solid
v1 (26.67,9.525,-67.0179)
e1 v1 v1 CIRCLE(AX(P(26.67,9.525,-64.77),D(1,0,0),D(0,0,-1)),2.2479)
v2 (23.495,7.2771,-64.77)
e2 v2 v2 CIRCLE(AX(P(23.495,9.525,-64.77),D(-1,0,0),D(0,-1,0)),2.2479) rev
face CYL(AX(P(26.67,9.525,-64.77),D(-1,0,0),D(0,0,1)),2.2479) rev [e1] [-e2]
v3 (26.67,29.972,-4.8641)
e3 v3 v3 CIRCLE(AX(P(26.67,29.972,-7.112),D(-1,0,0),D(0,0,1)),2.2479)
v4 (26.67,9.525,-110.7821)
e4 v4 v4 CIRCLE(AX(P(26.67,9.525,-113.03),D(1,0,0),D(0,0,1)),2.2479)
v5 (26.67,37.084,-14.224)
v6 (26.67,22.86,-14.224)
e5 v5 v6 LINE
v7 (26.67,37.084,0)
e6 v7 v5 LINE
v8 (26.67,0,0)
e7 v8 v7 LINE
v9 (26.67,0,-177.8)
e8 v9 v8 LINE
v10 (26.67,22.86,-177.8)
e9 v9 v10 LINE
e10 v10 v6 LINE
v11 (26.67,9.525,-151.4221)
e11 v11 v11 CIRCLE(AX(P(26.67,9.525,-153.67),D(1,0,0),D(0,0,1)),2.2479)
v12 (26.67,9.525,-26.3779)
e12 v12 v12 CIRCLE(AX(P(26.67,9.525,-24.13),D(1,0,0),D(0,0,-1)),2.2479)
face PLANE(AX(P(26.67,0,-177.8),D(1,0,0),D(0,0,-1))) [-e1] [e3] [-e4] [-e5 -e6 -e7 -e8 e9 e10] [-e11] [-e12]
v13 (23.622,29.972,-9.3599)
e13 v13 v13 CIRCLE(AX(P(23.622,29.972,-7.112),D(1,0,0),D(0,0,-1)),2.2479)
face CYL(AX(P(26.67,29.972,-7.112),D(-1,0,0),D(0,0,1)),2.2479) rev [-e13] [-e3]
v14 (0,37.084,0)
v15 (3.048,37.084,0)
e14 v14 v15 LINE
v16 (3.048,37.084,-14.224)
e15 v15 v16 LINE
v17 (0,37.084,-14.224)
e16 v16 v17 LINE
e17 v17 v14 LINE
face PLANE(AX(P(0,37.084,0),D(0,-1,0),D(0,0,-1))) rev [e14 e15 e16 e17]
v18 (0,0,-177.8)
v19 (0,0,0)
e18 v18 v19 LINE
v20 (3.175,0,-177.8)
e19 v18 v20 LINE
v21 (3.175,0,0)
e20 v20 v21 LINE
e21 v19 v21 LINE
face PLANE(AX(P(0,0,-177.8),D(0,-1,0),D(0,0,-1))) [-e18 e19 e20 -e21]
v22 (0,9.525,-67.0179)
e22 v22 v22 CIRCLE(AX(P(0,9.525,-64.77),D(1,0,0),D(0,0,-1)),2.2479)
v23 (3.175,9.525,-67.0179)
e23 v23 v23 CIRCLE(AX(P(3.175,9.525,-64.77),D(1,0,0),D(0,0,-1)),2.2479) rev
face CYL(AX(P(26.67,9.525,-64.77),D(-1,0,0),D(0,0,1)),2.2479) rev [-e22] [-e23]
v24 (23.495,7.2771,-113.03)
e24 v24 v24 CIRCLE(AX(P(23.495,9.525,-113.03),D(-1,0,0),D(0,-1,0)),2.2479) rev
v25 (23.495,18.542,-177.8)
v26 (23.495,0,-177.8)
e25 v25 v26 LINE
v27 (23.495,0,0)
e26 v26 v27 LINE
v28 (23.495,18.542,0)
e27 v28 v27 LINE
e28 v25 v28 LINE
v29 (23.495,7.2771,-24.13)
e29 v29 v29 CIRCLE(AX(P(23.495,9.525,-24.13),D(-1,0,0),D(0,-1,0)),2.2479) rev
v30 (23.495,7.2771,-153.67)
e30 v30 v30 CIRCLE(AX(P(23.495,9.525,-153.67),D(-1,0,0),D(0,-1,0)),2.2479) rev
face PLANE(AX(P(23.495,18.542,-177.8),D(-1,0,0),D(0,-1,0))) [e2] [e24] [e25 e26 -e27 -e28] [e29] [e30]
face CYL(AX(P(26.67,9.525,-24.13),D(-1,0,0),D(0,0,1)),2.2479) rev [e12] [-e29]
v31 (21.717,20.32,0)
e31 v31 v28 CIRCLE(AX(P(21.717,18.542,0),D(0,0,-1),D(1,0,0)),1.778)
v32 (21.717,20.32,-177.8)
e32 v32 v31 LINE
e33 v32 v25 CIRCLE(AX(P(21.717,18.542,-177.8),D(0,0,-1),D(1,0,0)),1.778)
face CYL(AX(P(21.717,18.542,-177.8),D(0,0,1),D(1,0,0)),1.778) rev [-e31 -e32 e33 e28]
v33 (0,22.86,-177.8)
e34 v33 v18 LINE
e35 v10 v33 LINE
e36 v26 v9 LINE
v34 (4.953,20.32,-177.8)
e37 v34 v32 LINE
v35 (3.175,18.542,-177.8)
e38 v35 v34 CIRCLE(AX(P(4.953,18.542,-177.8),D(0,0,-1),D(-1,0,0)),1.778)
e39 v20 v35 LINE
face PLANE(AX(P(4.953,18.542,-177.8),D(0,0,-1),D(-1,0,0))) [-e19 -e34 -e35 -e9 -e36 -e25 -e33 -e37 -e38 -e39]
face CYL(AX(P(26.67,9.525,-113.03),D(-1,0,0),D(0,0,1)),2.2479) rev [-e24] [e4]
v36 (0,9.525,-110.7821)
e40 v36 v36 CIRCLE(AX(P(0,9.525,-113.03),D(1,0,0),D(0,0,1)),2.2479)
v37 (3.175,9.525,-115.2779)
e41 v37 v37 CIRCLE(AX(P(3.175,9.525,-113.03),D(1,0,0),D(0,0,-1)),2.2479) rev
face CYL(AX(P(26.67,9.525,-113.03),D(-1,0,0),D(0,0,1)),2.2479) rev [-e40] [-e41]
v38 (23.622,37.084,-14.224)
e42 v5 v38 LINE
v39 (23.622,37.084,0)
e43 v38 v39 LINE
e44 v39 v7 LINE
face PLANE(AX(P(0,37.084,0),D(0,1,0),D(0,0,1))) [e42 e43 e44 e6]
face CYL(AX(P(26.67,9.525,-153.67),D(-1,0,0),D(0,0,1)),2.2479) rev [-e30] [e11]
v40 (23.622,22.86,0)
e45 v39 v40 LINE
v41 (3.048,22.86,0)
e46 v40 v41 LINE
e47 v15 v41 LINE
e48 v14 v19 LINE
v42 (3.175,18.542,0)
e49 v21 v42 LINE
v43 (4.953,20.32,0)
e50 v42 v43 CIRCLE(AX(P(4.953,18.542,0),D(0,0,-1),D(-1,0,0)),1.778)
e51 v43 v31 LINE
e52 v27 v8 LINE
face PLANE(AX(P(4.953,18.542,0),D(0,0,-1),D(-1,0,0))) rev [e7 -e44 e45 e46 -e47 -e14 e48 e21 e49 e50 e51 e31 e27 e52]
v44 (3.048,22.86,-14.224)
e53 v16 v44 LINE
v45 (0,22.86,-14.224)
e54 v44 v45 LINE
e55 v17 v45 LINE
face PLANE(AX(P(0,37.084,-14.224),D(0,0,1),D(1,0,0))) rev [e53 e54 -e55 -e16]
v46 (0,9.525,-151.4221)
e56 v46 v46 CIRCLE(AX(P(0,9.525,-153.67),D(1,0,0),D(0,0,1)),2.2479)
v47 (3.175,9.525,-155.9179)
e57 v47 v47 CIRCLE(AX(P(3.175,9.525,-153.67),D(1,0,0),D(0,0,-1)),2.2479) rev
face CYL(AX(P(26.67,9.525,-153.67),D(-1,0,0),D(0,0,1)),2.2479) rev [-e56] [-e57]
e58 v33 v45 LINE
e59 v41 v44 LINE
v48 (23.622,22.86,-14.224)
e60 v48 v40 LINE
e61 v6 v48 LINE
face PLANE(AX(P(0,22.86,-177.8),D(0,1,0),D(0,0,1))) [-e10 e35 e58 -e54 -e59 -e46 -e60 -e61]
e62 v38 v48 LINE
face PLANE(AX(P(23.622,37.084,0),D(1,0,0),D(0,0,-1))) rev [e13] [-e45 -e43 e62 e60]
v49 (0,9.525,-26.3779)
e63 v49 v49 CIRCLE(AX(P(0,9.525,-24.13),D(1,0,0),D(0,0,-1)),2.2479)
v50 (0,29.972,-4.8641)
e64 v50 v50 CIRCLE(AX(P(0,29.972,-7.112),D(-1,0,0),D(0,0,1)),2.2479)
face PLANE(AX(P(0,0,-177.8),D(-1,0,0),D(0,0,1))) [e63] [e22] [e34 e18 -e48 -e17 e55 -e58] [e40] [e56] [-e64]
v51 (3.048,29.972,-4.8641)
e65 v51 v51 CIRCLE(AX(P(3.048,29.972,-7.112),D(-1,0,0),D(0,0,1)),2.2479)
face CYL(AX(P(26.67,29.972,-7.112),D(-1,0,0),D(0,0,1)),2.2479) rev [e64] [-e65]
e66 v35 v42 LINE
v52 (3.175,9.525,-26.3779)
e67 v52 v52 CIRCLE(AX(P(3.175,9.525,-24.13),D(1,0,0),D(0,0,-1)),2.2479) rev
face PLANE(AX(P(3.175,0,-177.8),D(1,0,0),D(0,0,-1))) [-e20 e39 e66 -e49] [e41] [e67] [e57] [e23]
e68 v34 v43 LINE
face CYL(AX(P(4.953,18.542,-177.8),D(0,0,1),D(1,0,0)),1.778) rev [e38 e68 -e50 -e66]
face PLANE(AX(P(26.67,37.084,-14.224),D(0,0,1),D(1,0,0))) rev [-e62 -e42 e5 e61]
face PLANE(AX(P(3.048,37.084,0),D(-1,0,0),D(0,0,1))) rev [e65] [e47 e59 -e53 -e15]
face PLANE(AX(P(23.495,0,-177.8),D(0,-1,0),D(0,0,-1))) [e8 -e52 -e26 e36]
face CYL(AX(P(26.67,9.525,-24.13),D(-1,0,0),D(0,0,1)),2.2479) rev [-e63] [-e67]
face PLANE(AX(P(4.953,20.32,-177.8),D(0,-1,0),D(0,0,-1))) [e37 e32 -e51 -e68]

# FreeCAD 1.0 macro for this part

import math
import FreeCAD as App
import Part
import Sketcher
from FreeCAD import Vector
Q = App.Units.Quantity


def add_polygon(sketch, points):
    """Adds a closed chain of lines whose ends are joined by coincident constraints."""
    first, n = sketch.GeometryCount, len(points)
    for a, b in zip(points, points[1:] + points[:1]):
        sketch.addGeometry(Part.LineSegment(App.Vector(*a, 0), App.Vector(*b, 0)), False)
    for i in range(n):
        sketch.addConstraint(Sketcher.Constraint("Coincident", first + i, 2, first + (i + 1) % n, 1))

doc = App.newDocument("Part")
body = doc.addObject("PartDesign::Body", "Body")

sketch1 = body.newObject("Sketcher::SketchObject", "Sketch")
sketch1.AttachmentSupport = (doc.getObject("XY_Plane"), [""])
sketch1.MapMode = "FlatFace"
sketch1.addGeometry([
    Part.LineSegment(Vector(0, 22.9, 0), Vector(0, 0, 0)),
    Part.LineSegment(Vector(0, 0, 0), Vector(3.2, 0, 0)),
    Part.LineSegment(Vector(3.2, 0, 0), Vector(3.2, 18.5, 0)),
    Part.ArcOfCircle(Part.Circle(Vector(5, 18.5, 0), Vector(0, 0, 1), 1.8), math.radians(90), math.radians(180)),
    Part.LineSegment(Vector(5, 20.3, 0), Vector(21.7, 20.3, 0)),
    Part.ArcOfCircle(Part.Circle(Vector(21.7, 18.5, 0), Vector(0, 0, 1), 1.8), math.radians(0), math.radians(90)),
    Part.LineSegment(Vector(23.5, 18.5, 0), Vector(23.5, 0, 0)),
    Part.LineSegment(Vector(23.5, 0, 0), Vector(26.7, 0, 0)),
    Part.LineSegment(Vector(26.7, 0, 0), Vector(26.7, 22.9, 0)),
    Part.LineSegment(Vector(26.7, 22.9, 0), Vector(0, 22.9, 0)),
], False)
sketch1.addConstraint([
    Sketcher.Constraint("Coincident", 0, 2, 1, 1),
    Sketcher.Constraint("Coincident", 1, 2, 2, 1),
    Sketcher.Constraint("Tangent", 2, 2, 3, 2),
    Sketcher.Constraint("Tangent", 3, 1, 4, 1),
    Sketcher.Constraint("Tangent", 4, 2, 5, 2),
    Sketcher.Constraint("Tangent", 5, 1, 6, 1),
    Sketcher.Constraint("Coincident", 6, 2, 7, 1),
    Sketcher.Constraint("Coincident", 7, 2, 8, 1),
    Sketcher.Constraint("Coincident", 8, 2, 9, 1),
    Sketcher.Constraint("Coincident", 9, 2, 0, 1),
    Sketcher.Constraint("Vertical", 0),
    Sketcher.Constraint("Horizontal", 1),
    Sketcher.Constraint("Vertical", 2),
    Sketcher.Constraint("Horizontal", 4),
    Sketcher.Constraint("Vertical", 6),
    Sketcher.Constraint("Horizontal", 7),
    Sketcher.Constraint("Vertical", 8),
    Sketcher.Constraint("Horizontal", 9),
    Sketcher.Constraint("Coincident", 0, 2, -1, 1),
    Sketcher.Constraint("Equal", 3, 5),
    Sketcher.Constraint("PointOnObject", 6, 2, -1),
    Sketcher.Constraint("Equal", 1, 7),
    Sketcher.Constraint("Radius", 3, Q("0.07 in")),
    Sketcher.Constraint("DistanceY", 0, 2, 0, 1, Q("0.9 in")),
    Sketcher.Constraint("DistanceX", 4, 1, 4, 2, Q("0.66 in")),
    Sketcher.Constraint("DistanceX", 9, 2, 9, 1, Q("1.05 in")),
    Sketcher.Constraint("DistanceY", 2, 1, 2, 2, Q("0.73 in")),
])
pad1 = body.newObject("PartDesign::Pad", "Pad")
pad1.Profile = sketch1
pad1.Length = Q("7 in")
pad1.Reversed = True

sketch2 = body.newObject("Sketcher::SketchObject", "Sketch001")
sketch2.AttachmentSupport = (doc.getObject("YZ_Plane"), [""])
sketch2.MapMode = "FlatFace"
sketch2.addGeometry([
    Part.Circle(Vector(9.5, -24.1, 0), Vector(0, 0, 1), 2.2),
    Part.Circle(Vector(9.5, -64.8, 0), Vector(0, 0, 1), 2.2),
    Part.Circle(Vector(9.5, -113, 0), Vector(0, 0, 1), 2.2),
    Part.Circle(Vector(9.5, -153.7, 0), Vector(0, 0, 1), 2.2),
], False)
sketch2.addConstraint([
    Sketcher.Constraint("Equal", 0, 1),
    Sketcher.Constraint("Equal", 1, 2),
    Sketcher.Constraint("Equal", 2, 3),
    Sketcher.Constraint("Vertical", 0, 3, 1, 3),
    Sketcher.Constraint("Vertical", 1, 3, 2, 3),
    Sketcher.Constraint("Vertical", 2, 3, 3, 3),
    Sketcher.Constraint("Diameter", 0, Q("0.177 in")),
    Sketcher.Constraint("DistanceY", 1, 3, 0, 3, Q("1.6 in")),
    Sketcher.Constraint("DistanceY", 2, 3, 1, 3, Q("1.9 in")),
    Sketcher.Constraint("DistanceY", 3, 3, 2, 3, Q("1.6 in")),
    Sketcher.Constraint("DistanceY", 0, 3, -1, 1, Q("0.95 in")),
    Sketcher.Constraint("DistanceX", -1, 1, 0, 3, Q("0.375 in")),
])
pocket1 = body.newObject("PartDesign::Pocket", "Pocket")
pocket1.Profile = sketch2
pocket1.Type = "ThroughAll"
pocket1.Reversed = True

sketch3 = body.newObject("Sketcher::SketchObject", "Sketch002")
sketch3.AttachmentSupport = (doc.getObject("XZ_Plane"), [""])
sketch3.MapMode = "FlatFace"
sketch3.AttachmentOffset = App.Placement(Vector(0, 0, -0.9 * 25.4), App.Rotation())
add_polygon(sketch3, [(0, -14.2), (0, 0), (3, 0), (3, -14.2)])
add_polygon(sketch3, [(23.6, -14.2), (23.6, 0), (26.7, 0), (26.7, -14.2)])
sketch3.addConstraint([
    Sketcher.Constraint("Vertical", 0),
    Sketcher.Constraint("Horizontal", 1),
    Sketcher.Constraint("Vertical", 2),
    Sketcher.Constraint("Horizontal", 3),
    Sketcher.Constraint("Vertical", 4),
    Sketcher.Constraint("Horizontal", 5),
    Sketcher.Constraint("Vertical", 6),
    Sketcher.Constraint("Horizontal", 7),
    Sketcher.Constraint("Coincident", 0, 2, -1, 1),
    Sketcher.Constraint("PointOnObject", 4, 2, -1),
    Sketcher.Constraint("Horizontal", 3, 2, 6, 2),
    Sketcher.Constraint("Equal", 3, 5),
    Sketcher.Constraint("DistanceX", 1, 1, 1, 2, Q("0.12 in")),
    Sketcher.Constraint("DistanceY", 0, 1, 0, 2, Q("0.56 in")),
    Sketcher.Constraint("DistanceX", -1, 1, 4, 2, Q("0.93 in")),
])
pad2 = body.newObject("PartDesign::Pad", "Pad001")
pad2.Profile = sketch3
pad2.Length = Q("0.56 in")
pad2.Reversed = True

sketch4 = body.newObject("Sketcher::SketchObject", "Sketch003")
sketch4.AttachmentSupport = (doc.getObject("YZ_Plane"), [""])
sketch4.MapMode = "FlatFace"
sketch4.AttachmentOffset = App.Placement(Vector(0, 0, 0.93 * 25.4), App.Rotation())
sketch4.addGeometry(Part.Circle(Vector(30, -7.1, 0), Vector(0, 0, 1), 2.2), False)
sketch4.addConstraint([
    Sketcher.Constraint("Diameter", 0, Q("0.177 in")),
    Sketcher.Constraint("DistanceX", -1, 1, 0, 3, Q("1.18 in")),
    Sketcher.Constraint("DistanceY", 0, 3, -1, 1, Q("0.28 in")),
])
pocket2 = body.newObject("PartDesign::Pocket", "Pocket001")
pocket2.Profile = sketch4
pocket2.Type = "ThroughAll"
pocket2.Midplane = True

doc.recompute()
